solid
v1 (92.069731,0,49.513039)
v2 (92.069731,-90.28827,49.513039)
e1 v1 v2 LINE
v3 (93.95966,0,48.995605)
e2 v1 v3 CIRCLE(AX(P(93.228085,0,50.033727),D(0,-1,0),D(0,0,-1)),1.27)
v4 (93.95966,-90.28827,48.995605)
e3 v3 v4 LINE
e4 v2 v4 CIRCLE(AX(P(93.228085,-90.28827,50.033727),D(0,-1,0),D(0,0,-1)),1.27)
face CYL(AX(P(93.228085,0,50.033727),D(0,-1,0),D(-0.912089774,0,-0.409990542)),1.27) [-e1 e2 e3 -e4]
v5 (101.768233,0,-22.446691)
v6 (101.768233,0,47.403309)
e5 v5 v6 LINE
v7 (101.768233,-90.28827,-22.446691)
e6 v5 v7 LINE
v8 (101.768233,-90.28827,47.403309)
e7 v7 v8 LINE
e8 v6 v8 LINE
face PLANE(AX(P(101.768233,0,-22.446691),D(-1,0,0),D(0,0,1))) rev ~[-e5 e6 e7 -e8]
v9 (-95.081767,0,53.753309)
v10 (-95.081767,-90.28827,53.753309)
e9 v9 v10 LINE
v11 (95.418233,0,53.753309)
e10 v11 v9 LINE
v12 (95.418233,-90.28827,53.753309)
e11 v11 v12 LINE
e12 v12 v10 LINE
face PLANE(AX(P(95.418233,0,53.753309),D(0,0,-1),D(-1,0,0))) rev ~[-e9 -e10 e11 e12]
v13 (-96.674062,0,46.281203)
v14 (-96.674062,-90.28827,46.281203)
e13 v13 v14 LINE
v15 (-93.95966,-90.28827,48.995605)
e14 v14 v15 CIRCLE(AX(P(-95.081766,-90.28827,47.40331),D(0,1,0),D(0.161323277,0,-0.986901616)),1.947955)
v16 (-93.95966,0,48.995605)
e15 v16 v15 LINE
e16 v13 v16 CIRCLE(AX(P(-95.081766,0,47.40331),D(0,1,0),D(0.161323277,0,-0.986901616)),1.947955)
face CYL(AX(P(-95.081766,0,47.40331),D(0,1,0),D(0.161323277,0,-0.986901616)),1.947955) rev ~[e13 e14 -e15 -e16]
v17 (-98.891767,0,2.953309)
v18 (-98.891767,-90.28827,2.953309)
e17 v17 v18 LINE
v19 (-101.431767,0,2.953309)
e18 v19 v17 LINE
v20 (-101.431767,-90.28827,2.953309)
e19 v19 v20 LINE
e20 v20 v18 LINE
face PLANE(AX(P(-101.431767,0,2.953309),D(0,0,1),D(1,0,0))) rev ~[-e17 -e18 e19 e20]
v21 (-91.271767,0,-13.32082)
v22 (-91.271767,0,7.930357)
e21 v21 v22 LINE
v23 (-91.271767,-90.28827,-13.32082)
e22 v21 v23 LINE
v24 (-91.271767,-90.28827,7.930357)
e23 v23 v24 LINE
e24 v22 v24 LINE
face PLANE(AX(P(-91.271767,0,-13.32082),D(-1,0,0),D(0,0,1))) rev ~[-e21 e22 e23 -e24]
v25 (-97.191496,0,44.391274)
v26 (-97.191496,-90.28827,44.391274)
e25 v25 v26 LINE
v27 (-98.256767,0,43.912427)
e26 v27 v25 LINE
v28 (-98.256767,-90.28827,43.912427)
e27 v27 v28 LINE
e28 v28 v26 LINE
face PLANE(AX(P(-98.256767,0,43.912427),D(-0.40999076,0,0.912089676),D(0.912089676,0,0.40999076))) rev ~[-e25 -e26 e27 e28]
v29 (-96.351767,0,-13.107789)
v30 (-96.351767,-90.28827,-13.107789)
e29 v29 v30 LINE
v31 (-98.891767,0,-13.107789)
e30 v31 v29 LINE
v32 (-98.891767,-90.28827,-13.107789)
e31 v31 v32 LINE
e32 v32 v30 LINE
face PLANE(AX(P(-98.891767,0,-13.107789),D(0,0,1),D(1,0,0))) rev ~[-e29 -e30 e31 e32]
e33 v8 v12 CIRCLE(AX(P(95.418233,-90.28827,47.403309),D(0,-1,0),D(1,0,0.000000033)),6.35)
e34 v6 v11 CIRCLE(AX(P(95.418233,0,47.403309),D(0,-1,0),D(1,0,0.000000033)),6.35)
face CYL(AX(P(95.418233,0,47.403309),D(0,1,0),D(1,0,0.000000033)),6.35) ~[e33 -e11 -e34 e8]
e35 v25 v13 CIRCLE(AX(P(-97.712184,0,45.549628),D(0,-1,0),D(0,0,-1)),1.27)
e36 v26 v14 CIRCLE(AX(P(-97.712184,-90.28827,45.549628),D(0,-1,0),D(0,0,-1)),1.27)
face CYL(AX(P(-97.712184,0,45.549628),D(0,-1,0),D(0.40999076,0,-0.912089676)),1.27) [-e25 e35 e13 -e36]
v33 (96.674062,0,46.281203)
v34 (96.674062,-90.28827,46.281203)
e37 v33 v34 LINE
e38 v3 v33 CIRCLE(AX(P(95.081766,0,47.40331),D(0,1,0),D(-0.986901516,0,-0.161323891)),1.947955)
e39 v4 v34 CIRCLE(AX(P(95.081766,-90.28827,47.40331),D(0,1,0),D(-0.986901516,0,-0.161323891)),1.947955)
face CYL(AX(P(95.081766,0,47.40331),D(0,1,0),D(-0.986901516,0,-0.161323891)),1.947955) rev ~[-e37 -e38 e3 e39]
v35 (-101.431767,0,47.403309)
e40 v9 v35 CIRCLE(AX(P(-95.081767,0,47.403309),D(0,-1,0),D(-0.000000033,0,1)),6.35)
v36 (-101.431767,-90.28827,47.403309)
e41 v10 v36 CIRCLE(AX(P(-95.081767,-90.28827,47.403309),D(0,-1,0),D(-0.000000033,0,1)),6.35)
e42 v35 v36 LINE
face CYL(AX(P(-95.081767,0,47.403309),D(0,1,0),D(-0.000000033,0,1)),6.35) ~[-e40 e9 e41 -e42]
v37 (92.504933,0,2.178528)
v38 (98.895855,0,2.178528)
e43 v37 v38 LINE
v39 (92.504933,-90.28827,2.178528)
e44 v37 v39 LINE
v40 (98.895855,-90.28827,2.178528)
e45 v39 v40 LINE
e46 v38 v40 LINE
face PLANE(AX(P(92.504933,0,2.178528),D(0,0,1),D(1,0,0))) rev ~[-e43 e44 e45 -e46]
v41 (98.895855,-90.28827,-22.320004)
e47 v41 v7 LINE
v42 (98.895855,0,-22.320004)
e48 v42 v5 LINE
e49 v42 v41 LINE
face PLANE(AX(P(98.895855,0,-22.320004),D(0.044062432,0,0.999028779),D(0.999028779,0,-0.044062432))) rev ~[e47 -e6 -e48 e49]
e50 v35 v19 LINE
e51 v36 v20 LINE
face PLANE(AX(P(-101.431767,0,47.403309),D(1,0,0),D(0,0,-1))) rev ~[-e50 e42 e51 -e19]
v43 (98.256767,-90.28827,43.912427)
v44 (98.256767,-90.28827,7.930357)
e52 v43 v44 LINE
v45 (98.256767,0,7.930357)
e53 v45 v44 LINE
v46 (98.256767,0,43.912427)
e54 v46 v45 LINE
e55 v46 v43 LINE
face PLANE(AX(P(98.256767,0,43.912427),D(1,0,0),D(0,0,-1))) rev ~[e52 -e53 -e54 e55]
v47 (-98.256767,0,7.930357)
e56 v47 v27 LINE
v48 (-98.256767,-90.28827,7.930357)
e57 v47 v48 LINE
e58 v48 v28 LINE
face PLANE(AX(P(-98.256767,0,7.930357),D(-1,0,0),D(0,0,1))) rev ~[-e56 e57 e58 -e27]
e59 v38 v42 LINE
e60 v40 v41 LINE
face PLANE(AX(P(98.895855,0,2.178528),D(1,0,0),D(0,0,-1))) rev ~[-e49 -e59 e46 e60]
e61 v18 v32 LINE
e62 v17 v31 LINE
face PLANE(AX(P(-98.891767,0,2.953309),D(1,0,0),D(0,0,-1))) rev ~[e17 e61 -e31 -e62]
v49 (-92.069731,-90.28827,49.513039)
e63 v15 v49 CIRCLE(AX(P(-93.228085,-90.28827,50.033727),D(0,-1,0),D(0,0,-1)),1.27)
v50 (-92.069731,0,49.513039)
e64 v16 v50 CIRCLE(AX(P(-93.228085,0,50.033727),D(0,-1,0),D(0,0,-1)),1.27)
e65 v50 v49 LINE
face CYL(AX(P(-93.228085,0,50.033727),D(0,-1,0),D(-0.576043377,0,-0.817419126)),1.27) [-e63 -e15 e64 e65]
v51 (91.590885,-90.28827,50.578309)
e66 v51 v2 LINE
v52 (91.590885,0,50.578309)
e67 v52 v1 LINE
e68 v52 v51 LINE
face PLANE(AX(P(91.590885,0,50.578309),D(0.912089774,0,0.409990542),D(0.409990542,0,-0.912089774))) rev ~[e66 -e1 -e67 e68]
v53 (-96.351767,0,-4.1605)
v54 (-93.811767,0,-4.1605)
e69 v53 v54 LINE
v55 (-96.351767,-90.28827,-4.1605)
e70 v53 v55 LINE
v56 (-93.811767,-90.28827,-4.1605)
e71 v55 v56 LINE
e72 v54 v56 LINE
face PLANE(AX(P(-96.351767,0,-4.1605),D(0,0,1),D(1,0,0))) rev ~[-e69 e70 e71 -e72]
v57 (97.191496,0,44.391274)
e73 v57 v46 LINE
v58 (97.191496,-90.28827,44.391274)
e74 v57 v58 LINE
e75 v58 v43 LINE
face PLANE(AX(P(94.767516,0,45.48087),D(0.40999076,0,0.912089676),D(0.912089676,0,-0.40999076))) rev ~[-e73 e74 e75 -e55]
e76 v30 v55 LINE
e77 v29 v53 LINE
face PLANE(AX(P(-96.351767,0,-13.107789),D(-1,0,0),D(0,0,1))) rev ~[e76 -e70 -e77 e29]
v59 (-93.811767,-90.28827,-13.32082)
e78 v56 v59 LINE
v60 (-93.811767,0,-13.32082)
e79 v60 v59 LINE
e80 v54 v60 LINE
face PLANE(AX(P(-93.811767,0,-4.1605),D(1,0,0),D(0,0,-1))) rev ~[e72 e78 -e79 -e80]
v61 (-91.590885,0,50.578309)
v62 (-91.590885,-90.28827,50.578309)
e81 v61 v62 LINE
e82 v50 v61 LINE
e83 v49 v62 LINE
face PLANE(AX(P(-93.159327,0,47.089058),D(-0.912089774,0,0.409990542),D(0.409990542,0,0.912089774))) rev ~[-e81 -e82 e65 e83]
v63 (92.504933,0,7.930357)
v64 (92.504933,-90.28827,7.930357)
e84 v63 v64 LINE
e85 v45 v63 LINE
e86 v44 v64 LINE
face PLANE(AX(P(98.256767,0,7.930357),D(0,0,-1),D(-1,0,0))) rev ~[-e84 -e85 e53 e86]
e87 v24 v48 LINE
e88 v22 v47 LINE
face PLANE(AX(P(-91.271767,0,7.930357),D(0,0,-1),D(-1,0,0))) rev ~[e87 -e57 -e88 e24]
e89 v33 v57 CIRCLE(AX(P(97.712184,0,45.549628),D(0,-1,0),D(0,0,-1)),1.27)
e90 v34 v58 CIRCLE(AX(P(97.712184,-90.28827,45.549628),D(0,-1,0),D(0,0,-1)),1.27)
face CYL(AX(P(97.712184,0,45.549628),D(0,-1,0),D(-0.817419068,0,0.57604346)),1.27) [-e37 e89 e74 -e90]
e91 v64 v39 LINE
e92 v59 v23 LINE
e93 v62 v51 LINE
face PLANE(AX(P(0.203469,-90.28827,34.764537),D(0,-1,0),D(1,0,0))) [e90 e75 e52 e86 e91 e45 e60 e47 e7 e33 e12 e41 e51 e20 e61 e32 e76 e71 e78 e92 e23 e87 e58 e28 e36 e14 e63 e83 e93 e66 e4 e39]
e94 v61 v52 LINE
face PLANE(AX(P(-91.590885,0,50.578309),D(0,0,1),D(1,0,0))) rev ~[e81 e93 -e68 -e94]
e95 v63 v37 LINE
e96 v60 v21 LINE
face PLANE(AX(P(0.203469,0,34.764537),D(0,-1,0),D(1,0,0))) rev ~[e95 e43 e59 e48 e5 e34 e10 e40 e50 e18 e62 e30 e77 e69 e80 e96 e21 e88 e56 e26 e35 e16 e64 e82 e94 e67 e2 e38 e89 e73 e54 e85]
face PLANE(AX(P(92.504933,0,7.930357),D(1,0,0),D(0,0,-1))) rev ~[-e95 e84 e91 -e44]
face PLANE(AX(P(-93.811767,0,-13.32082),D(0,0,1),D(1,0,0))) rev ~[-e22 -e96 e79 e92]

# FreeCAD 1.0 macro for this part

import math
import FreeCAD as App
import Part
import Sketcher

V = App.Vector
Q = App.Units.Quantity


def edges_at(feature, points):
    """Names of the edges that pass closest to the given points."""
    edges = feature.Shape.Edges
    near = lambda p: min(range(len(edges)), key=lambda i: edges[i].distToShape(Part.Vertex(*p))[0])
    return sorted({f"Edge{near(p) + 1}" for p in points})

doc = App.newDocument("Part")
body = doc.addObject("PartDesign::Body", "Body")

sketch1 = body.newObject("Sketcher::SketchObject", "Sketch")
sketch1.AttachmentSupport = (doc.getObject("XZ_Plane"), [""])
sketch1.MapMode = "FlatFace"
sketch1.addGeometry(Part.LineSegment(V(95.418233, 53.753309, 0), V(-95.081767, 53.753309, 0)), False)
sketch1.addGeometry(Part.ArcOfCircle(Part.Circle(V(-95.081767, 47.403309, 0), V(0, 0, 1), 6.35), math.radians(90.000002), math.radians(179.999998)), False)
sketch1.addGeometry(Part.LineSegment(V(-101.431767, 47.403309, 0), V(-101.431767, 2.953309, 0)), False)
sketch1.addGeometry(Part.LineSegment(V(-101.431767, 2.953309, 0), V(-98.891767, 2.953309, 0)), False)
sketch1.addGeometry(Part.LineSegment(V(-98.891767, 2.953309, 0), V(-98.891767, -13.107789, 0)), False)
sketch1.addGeometry(Part.LineSegment(V(-98.891767, -13.107789, 0), V(-96.351767, -13.107789, 0)), False)
sketch1.addGeometry(Part.LineSegment(V(-96.351767, -13.107789, 0), V(-96.351767, -4.1605, 0)), False)
sketch1.addGeometry(Part.LineSegment(V(-96.351767, -4.1605, 0), V(-93.811767, -4.1605, 0)), False)
sketch1.addGeometry(Part.LineSegment(V(-93.811767, -4.1605, 0), V(-93.811767, -13.32082, 0)), False)
sketch1.addGeometry(Part.LineSegment(V(-93.811767, -13.32082, 0), V(-91.271767, -13.32082, 0)), False)
sketch1.addGeometry(Part.LineSegment(V(-91.271767, -13.32082, 0), V(-91.271767, 7.930357, 0)), False)
sketch1.addGeometry(Part.LineSegment(V(-91.271767, 7.930357, 0), V(-98.256767, 7.930357, 0)), False)
sketch1.addGeometry(Part.LineSegment(V(-98.256767, 7.930357, 0), V(-98.256767, 43.912427, 0)), False)
sketch1.addGeometry(Part.LineSegment(V(-98.256767, 43.912427, 0), V(-94.767516, 45.48087, 0)), False)
sketch1.addGeometry(Part.ArcOfCircle(Part.Circle(V(-95.081766, 47.40331, 0), V(0, 0, 1), 1.947955), math.radians(-9.283748), math.radians(279.283712)), False)
sketch1.addGeometry(Part.LineSegment(V(-93.159327, 47.089058, 0), V(-91.590885, 50.578309, 0)), False)
sketch1.addGeometry(Part.LineSegment(V(-91.590885, 50.578309, 0), V(91.590885, 50.578309, 0)), False)
sketch1.addGeometry(Part.LineSegment(V(91.590885, 50.578309, 0), V(93.159327, 47.089058, 0)), False)
sketch1.addGeometry(Part.ArcOfCircle(Part.Circle(V(95.081766, 47.40331, 0), V(0, 0, 1), 1.947955), math.radians(-99.283712), math.radians(189.283748)), False)
sketch1.addGeometry(Part.LineSegment(V(94.767516, 45.48087, 0), V(98.256767, 43.912427, 0)), False)
sketch1.addGeometry(Part.LineSegment(V(98.256767, 43.912427, 0), V(98.256767, 7.930357, 0)), False)
sketch1.addGeometry(Part.LineSegment(V(98.256767, 7.930357, 0), V(92.504933, 7.930357, 0)), False)
sketch1.addGeometry(Part.LineSegment(V(92.504933, 7.930357, 0), V(92.504933, 2.178528, 0)), False)
sketch1.addGeometry(Part.LineSegment(V(92.504933, 2.178528, 0), V(98.895855, 2.178528, 0)), False)
sketch1.addGeometry(Part.LineSegment(V(98.895855, 2.178528, 0), V(98.895855, -22.320004, 0)), False)
sketch1.addGeometry(Part.LineSegment(V(98.895855, -22.320004, 0), V(101.768233, -22.446691, 0)), False)
sketch1.addGeometry(Part.LineSegment(V(101.768233, -22.446691, 0), V(101.768233, 47.403309, 0)), False)
sketch1.addGeometry(Part.ArcOfCircle(Part.Circle(V(95.418233, 47.403309, 0), V(0, 0, 1), 6.35), math.radians(0.000002), math.radians(89.999998)), False)
sketch1.addConstraint(Sketcher.Constraint("Tangent", 0, 2, 1, 1))
sketch1.addConstraint(Sketcher.Constraint("Tangent", 1, 2, 2, 1))
sketch1.addConstraint(Sketcher.Constraint("Coincident", 2, 2, 3, 1))
sketch1.addConstraint(Sketcher.Constraint("Coincident", 3, 2, 4, 1))
sketch1.addConstraint(Sketcher.Constraint("Coincident", 4, 2, 5, 1))
sketch1.addConstraint(Sketcher.Constraint("Coincident", 5, 2, 6, 1))
sketch1.addConstraint(Sketcher.Constraint("Coincident", 6, 2, 7, 1))
sketch1.addConstraint(Sketcher.Constraint("Coincident", 7, 2, 8, 1))
sketch1.addConstraint(Sketcher.Constraint("Coincident", 8, 2, 9, 1))
sketch1.addConstraint(Sketcher.Constraint("Coincident", 9, 2, 10, 1))
sketch1.addConstraint(Sketcher.Constraint("Coincident", 10, 2, 11, 1))
sketch1.addConstraint(Sketcher.Constraint("Coincident", 11, 2, 12, 1))
sketch1.addConstraint(Sketcher.Constraint("Coincident", 12, 2, 13, 1))
sketch1.addConstraint(Sketcher.Constraint("Coincident", 13, 2, 14, 2))
sketch1.addConstraint(Sketcher.Constraint("Coincident", 14, 1, 15, 1))
sketch1.addConstraint(Sketcher.Constraint("Coincident", 15, 2, 16, 1))
sketch1.addConstraint(Sketcher.Constraint("Coincident", 16, 2, 17, 1))
sketch1.addConstraint(Sketcher.Constraint("Coincident", 17, 2, 18, 2))
sketch1.addConstraint(Sketcher.Constraint("Coincident", 18, 1, 19, 1))
sketch1.addConstraint(Sketcher.Constraint("Coincident", 19, 2, 20, 1))
sketch1.addConstraint(Sketcher.Constraint("Coincident", 20, 2, 21, 1))
sketch1.addConstraint(Sketcher.Constraint("Coincident", 21, 2, 22, 1))
sketch1.addConstraint(Sketcher.Constraint("Coincident", 22, 2, 23, 1))
sketch1.addConstraint(Sketcher.Constraint("Coincident", 23, 2, 24, 1))
sketch1.addConstraint(Sketcher.Constraint("Coincident", 24, 2, 25, 1))
sketch1.addConstraint(Sketcher.Constraint("Coincident", 25, 2, 26, 1))
sketch1.addConstraint(Sketcher.Constraint("Tangent", 26, 2, 27, 1))
sketch1.addConstraint(Sketcher.Constraint("Tangent", 27, 2, 0, 1))
sketch1.addConstraint(Sketcher.Constraint("Horizontal", 0))
sketch1.addConstraint(Sketcher.Constraint("Vertical", 2))
sketch1.addConstraint(Sketcher.Constraint("Horizontal", 3))
sketch1.addConstraint(Sketcher.Constraint("Vertical", 4))
sketch1.addConstraint(Sketcher.Constraint("Horizontal", 5))
sketch1.addConstraint(Sketcher.Constraint("Vertical", 6))
sketch1.addConstraint(Sketcher.Constraint("Horizontal", 7))
sketch1.addConstraint(Sketcher.Constraint("Vertical", 8))
sketch1.addConstraint(Sketcher.Constraint("Horizontal", 9))
sketch1.addConstraint(Sketcher.Constraint("Vertical", 10))
sketch1.addConstraint(Sketcher.Constraint("Horizontal", 11))
sketch1.addConstraint(Sketcher.Constraint("Vertical", 12))
sketch1.addConstraint(Sketcher.Constraint("Horizontal", 16))
sketch1.addConstraint(Sketcher.Constraint("Vertical", 20))
sketch1.addConstraint(Sketcher.Constraint("Horizontal", 21))
sketch1.addConstraint(Sketcher.Constraint("Vertical", 22))
sketch1.addConstraint(Sketcher.Constraint("Horizontal", 23))
sketch1.addConstraint(Sketcher.Constraint("Vertical", 24))
sketch1.addConstraint(Sketcher.Constraint("Vertical", 26))
sketch1.addConstraint(Sketcher.Constraint("Coincident", 14, 3, 1, 3))
sketch1.addConstraint(Sketcher.Constraint("Equal", 14, 18))
sketch1.addConstraint(Sketcher.Constraint("Equal", 1, 27))
sketch1.addConstraint(Sketcher.Constraint("Symmetric", 1, 3, 18, 3, -2))
sketch1.addConstraint(Sketcher.Constraint("Symmetric", 12, 2, 19, 2, -2))
sketch1.addConstraint(Sketcher.Constraint("Perpendicular", 13, 17))
sketch1.addConstraint(Sketcher.Constraint("Perpendicular", 15, 19))
sketch1.addConstraint(Sketcher.Constraint("Horizontal", 14, 1, 17, 2))
sketch1.addConstraint(Sketcher.Constraint("Horizontal", 13, 2, 18, 1))
sketch1.addConstraint(Sketcher.Constraint("Horizontal", 11, 2, 20, 2))
sketch1.addConstraint(Sketcher.Constraint("Equal", 3, 5))
sketch1.addConstraint(Sketcher.Constraint("Equal", 5, 7))
sketch1.addConstraint(Sketcher.Constraint("Equal", 7, 9))
sketch1.addConstraint(Sketcher.Constraint("Equal", 13, 15))
sketch1.addConstraint(Sketcher.Constraint("Radius", 1, Q("0.25 in")))
sketch1.addConstraint(Sketcher.Constraint("DistanceX", 0, 2, 0, 1, Q("7.5 in")))
sketch1.addConstraint(Sketcher.Constraint("DistanceX", 3, 1, 3, 2, Q("0.1 in")))
sketch1.addConstraint(Sketcher.Constraint("DistanceY", 2, 2, 0, 2, Q("2 in")))
sketch1.addConstraint(Sketcher.Constraint("DistanceY", 26, 1, 26, 2, Q("2.75 in")))
sketch1.addConstraint(Sketcher.Constraint("DistanceX", 11, 2, 11, 1, Q("0.275 in")))
sketch1.addConstraint(Sketcher.Constraint("DistanceY", 14, 3, 15, 2, Q("0.125 in")))
sketch1.addConstraint(Sketcher.Constraint("DistanceY", 4, 2, 4, 1, 16.061098))
sketch1.addConstraint(Sketcher.Constraint("DistanceY", -1, 1, 14, 1, Q("1.8538999 in")))
sketch1.addConstraint(Sketcher.Constraint("Radius", 14, 1.947955))
sketch1.addConstraint(Sketcher.Constraint("DistanceX", 16, 1, 16, 2, 183.18177))
sketch1.addConstraint(Sketcher.Constraint("DistanceY", 6, 1, 6, 2, 8.947289))
sketch1.addConstraint(Sketcher.Constraint("DistanceY", 8, 2, 8, 1, 9.16032))
sketch1.addConstraint(Sketcher.Constraint("DistanceY", 12, 1, 12, 2, 35.98207))
sketch1.addConstraint(Sketcher.Constraint("DistanceY", 22, 2, 22, 1, 5.751829))
sketch1.addConstraint(Sketcher.Constraint("DistanceY", 6, 2, -1, 1, 4.1605))
sketch1.addConstraint(Sketcher.Constraint("DistanceX", 13, 2, 16, 2, 186.358401))
sketch1.addConstraint(Sketcher.Constraint("DistanceX", 22, 2, 25, 2, 9.2633))
sketch1.addConstraint(Sketcher.Constraint("Distance", 25, 2.87517))
sketch1.addConstraint(Sketcher.Constraint("DistanceX", 23, 1, 23, 2, 6.390922))
pad1 = body.newObject("PartDesign::Pad", "Pad")
pad1.Profile = sketch1
pad1.Length = 90.28827
doc.recompute()

fillet = body.newObject("PartDesign::Fillet", "Fillet")
fillet.Base = (pad1, edges_at(pad1, [
    (-94.768, -45.144, 45.481),
    (-93.159, -45.144, 47.089),
    (93.159, -45.144, 47.089),
    (94.768, -45.144, 45.481),
]))
fillet.Radius = Q("0.05 in")

doc.recompute()
